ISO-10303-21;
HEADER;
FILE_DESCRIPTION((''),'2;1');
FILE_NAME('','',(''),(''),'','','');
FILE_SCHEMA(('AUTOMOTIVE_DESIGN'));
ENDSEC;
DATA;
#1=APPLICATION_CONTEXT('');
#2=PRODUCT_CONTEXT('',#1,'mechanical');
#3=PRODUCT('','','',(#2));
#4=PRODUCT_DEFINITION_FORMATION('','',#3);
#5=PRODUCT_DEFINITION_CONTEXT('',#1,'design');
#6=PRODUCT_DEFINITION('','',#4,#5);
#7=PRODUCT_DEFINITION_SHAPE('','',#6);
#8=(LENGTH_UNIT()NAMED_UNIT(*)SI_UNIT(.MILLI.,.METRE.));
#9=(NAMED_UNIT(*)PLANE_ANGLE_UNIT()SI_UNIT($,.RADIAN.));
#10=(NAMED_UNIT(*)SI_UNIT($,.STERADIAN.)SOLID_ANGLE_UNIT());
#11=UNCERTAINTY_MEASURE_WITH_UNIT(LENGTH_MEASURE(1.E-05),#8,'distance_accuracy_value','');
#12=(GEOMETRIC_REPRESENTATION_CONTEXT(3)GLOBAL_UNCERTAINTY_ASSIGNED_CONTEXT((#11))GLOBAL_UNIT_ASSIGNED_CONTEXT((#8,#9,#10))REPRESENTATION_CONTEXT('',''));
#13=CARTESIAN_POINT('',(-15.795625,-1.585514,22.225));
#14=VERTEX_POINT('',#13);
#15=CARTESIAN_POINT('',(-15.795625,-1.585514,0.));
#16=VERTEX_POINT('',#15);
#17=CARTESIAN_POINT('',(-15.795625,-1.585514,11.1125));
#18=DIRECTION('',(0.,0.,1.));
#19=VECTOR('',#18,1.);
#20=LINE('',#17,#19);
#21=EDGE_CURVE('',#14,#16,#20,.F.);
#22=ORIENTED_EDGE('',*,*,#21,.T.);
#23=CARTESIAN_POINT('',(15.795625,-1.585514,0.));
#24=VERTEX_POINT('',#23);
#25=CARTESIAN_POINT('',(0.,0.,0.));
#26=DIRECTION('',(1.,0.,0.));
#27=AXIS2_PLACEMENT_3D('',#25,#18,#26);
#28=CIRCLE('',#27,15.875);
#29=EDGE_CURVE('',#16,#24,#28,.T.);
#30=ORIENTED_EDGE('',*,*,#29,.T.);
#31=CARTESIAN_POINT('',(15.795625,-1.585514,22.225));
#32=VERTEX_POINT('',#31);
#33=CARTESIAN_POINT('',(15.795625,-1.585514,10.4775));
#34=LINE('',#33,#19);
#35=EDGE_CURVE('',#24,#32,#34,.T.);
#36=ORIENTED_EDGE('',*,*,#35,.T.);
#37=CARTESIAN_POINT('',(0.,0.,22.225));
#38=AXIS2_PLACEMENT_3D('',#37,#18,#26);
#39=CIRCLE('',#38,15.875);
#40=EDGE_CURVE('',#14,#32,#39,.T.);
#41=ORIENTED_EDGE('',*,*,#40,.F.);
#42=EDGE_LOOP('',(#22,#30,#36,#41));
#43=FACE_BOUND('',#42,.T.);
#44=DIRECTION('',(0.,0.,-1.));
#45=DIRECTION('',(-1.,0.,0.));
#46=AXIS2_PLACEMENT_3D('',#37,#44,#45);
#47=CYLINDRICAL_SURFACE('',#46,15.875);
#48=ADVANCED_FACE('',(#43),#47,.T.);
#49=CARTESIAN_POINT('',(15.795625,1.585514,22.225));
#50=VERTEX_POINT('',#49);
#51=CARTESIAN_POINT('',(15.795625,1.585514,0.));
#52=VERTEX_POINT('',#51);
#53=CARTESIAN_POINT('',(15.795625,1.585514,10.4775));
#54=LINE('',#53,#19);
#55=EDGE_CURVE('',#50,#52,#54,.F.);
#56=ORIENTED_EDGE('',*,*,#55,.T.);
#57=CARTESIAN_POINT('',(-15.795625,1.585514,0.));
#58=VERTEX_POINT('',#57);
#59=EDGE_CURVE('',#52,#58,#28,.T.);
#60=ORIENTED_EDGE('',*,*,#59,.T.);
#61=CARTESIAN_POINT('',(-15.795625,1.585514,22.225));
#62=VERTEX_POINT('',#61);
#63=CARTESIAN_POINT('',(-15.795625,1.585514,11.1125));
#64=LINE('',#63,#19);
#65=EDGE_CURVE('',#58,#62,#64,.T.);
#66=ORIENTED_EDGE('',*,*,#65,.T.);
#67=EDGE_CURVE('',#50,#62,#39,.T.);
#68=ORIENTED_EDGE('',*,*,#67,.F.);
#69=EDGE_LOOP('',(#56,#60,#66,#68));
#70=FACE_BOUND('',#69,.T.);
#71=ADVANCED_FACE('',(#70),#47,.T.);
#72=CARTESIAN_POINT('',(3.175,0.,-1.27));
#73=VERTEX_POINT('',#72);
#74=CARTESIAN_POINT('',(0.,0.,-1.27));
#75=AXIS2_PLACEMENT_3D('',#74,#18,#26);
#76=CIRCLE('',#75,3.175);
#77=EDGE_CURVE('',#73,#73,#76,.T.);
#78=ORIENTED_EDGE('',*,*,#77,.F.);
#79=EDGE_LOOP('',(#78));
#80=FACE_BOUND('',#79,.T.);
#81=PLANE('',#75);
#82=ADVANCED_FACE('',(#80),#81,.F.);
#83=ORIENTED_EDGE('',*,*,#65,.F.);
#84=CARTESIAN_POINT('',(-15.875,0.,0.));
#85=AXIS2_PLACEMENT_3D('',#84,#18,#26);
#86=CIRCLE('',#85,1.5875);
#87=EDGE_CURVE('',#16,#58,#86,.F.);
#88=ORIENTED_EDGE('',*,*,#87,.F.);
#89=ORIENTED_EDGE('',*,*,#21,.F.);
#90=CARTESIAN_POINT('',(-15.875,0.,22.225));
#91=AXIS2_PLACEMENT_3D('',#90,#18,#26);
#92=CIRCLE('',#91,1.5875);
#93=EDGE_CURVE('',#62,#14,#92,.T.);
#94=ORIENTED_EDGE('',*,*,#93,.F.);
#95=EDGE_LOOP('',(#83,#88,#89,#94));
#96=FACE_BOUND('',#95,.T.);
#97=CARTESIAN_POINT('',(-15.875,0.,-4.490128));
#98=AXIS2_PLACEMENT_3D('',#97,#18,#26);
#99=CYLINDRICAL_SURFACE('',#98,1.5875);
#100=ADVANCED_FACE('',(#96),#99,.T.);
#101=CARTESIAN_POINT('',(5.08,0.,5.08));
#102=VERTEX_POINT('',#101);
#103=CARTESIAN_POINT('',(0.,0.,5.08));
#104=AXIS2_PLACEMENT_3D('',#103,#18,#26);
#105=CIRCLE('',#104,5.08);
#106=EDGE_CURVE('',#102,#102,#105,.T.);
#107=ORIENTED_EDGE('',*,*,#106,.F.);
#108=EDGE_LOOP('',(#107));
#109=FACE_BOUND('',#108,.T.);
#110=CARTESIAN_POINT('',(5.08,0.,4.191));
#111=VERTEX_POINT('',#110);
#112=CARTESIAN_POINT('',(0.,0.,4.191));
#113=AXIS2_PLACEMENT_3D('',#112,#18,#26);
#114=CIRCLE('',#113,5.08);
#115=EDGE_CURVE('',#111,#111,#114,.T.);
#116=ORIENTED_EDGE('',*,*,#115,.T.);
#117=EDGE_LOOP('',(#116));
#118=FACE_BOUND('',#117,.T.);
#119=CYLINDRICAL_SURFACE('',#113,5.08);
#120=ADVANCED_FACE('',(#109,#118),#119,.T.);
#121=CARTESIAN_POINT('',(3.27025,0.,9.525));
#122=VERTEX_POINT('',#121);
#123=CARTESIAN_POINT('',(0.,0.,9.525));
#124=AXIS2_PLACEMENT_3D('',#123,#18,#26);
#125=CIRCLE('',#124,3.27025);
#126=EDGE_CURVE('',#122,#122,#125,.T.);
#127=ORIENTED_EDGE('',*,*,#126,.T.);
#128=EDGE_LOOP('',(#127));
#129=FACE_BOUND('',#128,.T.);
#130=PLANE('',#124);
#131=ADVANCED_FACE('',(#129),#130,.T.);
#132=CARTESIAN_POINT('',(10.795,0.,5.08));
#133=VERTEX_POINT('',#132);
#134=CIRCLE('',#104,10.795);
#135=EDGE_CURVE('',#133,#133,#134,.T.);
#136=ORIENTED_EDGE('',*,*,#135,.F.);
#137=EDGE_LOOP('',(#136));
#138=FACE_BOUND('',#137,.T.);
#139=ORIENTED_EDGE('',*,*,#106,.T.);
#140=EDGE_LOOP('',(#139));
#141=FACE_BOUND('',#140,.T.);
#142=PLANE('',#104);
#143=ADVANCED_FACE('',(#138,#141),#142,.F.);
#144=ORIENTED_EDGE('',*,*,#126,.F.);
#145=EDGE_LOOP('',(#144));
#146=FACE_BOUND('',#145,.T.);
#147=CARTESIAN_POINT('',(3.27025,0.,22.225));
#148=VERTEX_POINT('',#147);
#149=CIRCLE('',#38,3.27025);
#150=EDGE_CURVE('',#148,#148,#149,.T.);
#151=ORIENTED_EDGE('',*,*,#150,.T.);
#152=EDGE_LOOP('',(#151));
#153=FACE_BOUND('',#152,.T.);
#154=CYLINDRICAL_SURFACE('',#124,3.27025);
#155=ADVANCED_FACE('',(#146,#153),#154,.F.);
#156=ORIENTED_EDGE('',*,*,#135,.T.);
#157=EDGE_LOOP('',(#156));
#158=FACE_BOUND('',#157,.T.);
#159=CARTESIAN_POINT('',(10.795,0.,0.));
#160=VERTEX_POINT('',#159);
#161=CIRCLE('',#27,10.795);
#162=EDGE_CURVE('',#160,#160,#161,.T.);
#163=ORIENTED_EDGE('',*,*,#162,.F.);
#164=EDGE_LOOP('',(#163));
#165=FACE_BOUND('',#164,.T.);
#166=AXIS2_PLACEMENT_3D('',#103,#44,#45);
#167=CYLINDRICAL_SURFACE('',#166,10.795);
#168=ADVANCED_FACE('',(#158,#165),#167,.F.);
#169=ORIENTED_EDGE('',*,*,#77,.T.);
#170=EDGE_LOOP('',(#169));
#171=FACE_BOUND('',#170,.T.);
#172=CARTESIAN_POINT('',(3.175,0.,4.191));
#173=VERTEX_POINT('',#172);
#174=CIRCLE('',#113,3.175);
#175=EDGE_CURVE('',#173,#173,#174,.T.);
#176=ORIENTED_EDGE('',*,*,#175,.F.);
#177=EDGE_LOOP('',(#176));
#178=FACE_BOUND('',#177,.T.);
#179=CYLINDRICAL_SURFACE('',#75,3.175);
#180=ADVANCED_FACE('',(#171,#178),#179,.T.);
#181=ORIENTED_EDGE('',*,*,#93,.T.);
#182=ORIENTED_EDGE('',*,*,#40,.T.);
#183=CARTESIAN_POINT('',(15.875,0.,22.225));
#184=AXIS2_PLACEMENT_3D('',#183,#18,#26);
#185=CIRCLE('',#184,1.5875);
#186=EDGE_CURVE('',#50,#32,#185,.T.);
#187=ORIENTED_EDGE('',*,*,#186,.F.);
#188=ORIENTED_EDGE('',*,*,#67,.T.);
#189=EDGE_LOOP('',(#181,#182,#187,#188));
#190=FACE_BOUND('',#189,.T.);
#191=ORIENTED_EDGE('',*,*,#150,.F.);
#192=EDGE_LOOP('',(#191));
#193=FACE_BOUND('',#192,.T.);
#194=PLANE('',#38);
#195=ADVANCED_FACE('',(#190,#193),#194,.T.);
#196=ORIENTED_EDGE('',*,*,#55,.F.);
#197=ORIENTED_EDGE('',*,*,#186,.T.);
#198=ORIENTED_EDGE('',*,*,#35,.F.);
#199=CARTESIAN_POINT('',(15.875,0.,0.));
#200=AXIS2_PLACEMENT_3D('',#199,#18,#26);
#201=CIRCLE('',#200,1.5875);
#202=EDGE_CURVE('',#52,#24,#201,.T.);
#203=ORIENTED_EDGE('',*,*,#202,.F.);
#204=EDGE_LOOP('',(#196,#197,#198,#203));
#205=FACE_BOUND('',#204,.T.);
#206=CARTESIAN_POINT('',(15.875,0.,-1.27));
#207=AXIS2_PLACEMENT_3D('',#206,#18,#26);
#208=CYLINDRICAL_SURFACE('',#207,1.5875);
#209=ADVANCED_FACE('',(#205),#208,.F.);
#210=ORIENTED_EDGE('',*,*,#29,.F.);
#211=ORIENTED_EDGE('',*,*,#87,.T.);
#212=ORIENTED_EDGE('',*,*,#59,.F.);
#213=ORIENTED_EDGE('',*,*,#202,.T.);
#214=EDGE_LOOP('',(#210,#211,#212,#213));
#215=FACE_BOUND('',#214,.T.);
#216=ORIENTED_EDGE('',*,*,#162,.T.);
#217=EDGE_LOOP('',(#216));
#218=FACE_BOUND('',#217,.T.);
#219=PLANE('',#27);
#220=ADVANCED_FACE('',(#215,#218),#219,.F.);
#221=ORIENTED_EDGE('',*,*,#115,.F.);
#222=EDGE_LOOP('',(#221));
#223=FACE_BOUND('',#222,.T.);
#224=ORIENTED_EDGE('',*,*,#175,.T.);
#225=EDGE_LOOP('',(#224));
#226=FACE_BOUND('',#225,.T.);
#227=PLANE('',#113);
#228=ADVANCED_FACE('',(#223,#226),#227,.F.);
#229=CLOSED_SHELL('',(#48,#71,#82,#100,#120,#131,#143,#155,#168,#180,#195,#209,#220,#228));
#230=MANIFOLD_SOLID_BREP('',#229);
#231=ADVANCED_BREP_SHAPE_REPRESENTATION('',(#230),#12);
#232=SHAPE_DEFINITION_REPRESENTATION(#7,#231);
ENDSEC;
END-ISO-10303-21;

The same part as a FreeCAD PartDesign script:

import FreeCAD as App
import Part
import Sketcher

V = App.Vector
Q = App.Units.Quantity

doc = App.newDocument("Part")
body = doc.addObject("PartDesign::Body", "Body")

# Sketch on XY plane
sketch1 = doc.addObject("Sketcher::SketchObject", "Sketch")
body.addObject(sketch1)
sketch1.AttachmentSupport = (doc.XY_Plane, [""])
sketch1.MapMode = "FlatFace"
sketch1.addGeometry(Part.Circle(V(0, 0, 0), V(0, 0, 1), 16), False)
sketch1.addConstraint(Sketcher.Constraint("Coincident", 0, 3, -1, 1))
sketch1.addConstraint(Sketcher.Constraint("Diameter", 0, Q("1.25 in")))
pad1 = doc.addObject("PartDesign::Pad", "Pad")
body.addObject(pad1)
pad1.Profile = sketch1
pad1.Length = Q("0.875 in")

# Sketch on XY plane
sketch2 = doc.addObject("Sketcher::SketchObject", "Sketch001")
body.addObject(sketch2)
sketch2.AttachmentSupport = (doc.XY_Plane, [""])
sketch2.MapMode = "FlatFace"
sketch2.addGeometry(Part.Circle(V(0, 0, 0), V(0, 0, 1), 11), False)
sketch2.addConstraint(Sketcher.Constraint("Coincident", 0, 3, -1, 1))
sketch2.addConstraint(Sketcher.Constraint("Diameter", 0, Q("0.85 in")))
pocket1 = doc.addObject("PartDesign::Pocket", "Pocket")
body.addObject(pocket1)
pocket1.Profile = sketch2
pocket1.Length = Q("0.2 in")
pocket1.Reversed = True

# Sketch on XY plane
sketch3 = doc.addObject("Sketcher::SketchObject", "Sketch002")
body.addObject(sketch3)
sketch3.AttachmentSupport = (doc.XY_Plane, [""])
sketch3.MapMode = "FlatFace"
sketch3.AttachmentOffset = App.Placement(V(0, 0, 0.2 * 25.4), App.Rotation())
sketch3.addGeometry(Part.Circle(V(0, 0, 0), V(0, 0, 1), 5), False)
sketch3.addConstraint(Sketcher.Constraint("Coincident", 0, 3, -1, 1))
sketch3.addConstraint(Sketcher.Constraint("Diameter", 0, Q("0.4 in")))
pad2 = doc.addObject("PartDesign::Pad", "Pad001")
body.addObject(pad2)
pad2.Profile = sketch3
pad2.Length = Q("0.035 in")
pad2.Reversed = True

# Sketch on XY plane
sketch4 = doc.addObject("Sketcher::SketchObject", "Sketch003")
body.addObject(sketch4)
sketch4.AttachmentSupport = (doc.XY_Plane, [""])
sketch4.MapMode = "FlatFace"
sketch4.AttachmentOffset = App.Placement(V(0, 0, 0.2 * 25.4), App.Rotation())
sketch4.addGeometry(Part.Circle(V(0, 0, 0), V(0, 0, 1), 3.2), False)
sketch4.addConstraint(Sketcher.Constraint("Coincident", 0, 3, -1, 1))
sketch4.addConstraint(Sketcher.Constraint("Diameter", 0, Q("0.25 in")))
pad3 = doc.addObject("PartDesign::Pad", "Pad002")
body.addObject(pad3)
pad3.Profile = sketch4
pad3.Length = Q("0.25 in")
pad3.Reversed = True

# Sketch on XY plane
sketch5 = doc.addObject("Sketcher::SketchObject", "Sketch004")
body.addObject(sketch5)
sketch5.AttachmentSupport = (doc.XY_Plane, [""])
sketch5.MapMode = "FlatFace"
sketch5.AttachmentOffset = App.Placement(V(0, 0, 0.875 * 25.4), App.Rotation())
sketch5.addGeometry(Part.Circle(V(0, 0, 0), V(0, 0, 1), 3.3), False)
sketch5.addConstraint(Sketcher.Constraint("Coincident", 0, 3, -1, 1))
sketch5.addConstraint(Sketcher.Constraint("Diameter", 0, Q("0.2575 in")))
pocket2 = doc.addObject("PartDesign::Pocket", "Pocket001")
body.addObject(pocket2)
pocket2.Profile = sketch5
pocket2.Length = Q("0.5 in")

# Sketch on XY plane
sketch6 = doc.addObject("Sketcher::SketchObject", "Sketch005")
body.addObject(sketch6)
sketch6.AttachmentSupport = (doc.XY_Plane, [""])
sketch6.MapMode = "FlatFace"
sketch6.AttachmentOffset = App.Placement(V(0, 0, 0.875 * 25.4), App.Rotation())
sketch6.addGeometry(Part.Circle(V(15.9, 0, 0), V(0, 0, 1), 1.6), False)
sketch6.addConstraint(Sketcher.Constraint("PointOnObject", 0, 3, -1))
sketch6.addConstraint(Sketcher.Constraint("Diameter", 0, Q("0.125 in")))
sketch6.addConstraint(Sketcher.Constraint("DistanceX", -1, 1, 0, 3, Q("0.625 in")))
pocket3 = doc.addObject("PartDesign::Pocket", "Pocket002")
body.addObject(pocket3)
pocket3.Profile = sketch6
pocket3.Type = "ThroughAll"

# Sketch on XY plane
sketch7 = doc.addObject("Sketcher::SketchObject", "Sketch006")
body.addObject(sketch7)
sketch7.AttachmentSupport = (doc.XY_Plane, [""])
sketch7.MapMode = "FlatFace"
sketch7.AttachmentOffset = App.Placement(V(0, 0, 0.875 * 25.4), App.Rotation())
sketch7.addGeometry(Part.Circle(V(-15.9, 0, 0), V(0, 0, 1), 1.6), False)
sketch7.addConstraint(Sketcher.Constraint("PointOnObject", 0, 3, -1))
sketch7.addConstraint(Sketcher.Constraint("Diameter", 0, Q("0.125 in")))
sketch7.addConstraint(Sketcher.Constraint("DistanceX", 0, 3, -1, 1, Q("0.625 in")))
pad4 = doc.addObject("PartDesign::Pad", "Pad003")
body.addObject(pad4)
pad4.Profile = sketch7
pad4.Length = Q("0.875 in")
pad4.Reversed = True

doc.recompute()
